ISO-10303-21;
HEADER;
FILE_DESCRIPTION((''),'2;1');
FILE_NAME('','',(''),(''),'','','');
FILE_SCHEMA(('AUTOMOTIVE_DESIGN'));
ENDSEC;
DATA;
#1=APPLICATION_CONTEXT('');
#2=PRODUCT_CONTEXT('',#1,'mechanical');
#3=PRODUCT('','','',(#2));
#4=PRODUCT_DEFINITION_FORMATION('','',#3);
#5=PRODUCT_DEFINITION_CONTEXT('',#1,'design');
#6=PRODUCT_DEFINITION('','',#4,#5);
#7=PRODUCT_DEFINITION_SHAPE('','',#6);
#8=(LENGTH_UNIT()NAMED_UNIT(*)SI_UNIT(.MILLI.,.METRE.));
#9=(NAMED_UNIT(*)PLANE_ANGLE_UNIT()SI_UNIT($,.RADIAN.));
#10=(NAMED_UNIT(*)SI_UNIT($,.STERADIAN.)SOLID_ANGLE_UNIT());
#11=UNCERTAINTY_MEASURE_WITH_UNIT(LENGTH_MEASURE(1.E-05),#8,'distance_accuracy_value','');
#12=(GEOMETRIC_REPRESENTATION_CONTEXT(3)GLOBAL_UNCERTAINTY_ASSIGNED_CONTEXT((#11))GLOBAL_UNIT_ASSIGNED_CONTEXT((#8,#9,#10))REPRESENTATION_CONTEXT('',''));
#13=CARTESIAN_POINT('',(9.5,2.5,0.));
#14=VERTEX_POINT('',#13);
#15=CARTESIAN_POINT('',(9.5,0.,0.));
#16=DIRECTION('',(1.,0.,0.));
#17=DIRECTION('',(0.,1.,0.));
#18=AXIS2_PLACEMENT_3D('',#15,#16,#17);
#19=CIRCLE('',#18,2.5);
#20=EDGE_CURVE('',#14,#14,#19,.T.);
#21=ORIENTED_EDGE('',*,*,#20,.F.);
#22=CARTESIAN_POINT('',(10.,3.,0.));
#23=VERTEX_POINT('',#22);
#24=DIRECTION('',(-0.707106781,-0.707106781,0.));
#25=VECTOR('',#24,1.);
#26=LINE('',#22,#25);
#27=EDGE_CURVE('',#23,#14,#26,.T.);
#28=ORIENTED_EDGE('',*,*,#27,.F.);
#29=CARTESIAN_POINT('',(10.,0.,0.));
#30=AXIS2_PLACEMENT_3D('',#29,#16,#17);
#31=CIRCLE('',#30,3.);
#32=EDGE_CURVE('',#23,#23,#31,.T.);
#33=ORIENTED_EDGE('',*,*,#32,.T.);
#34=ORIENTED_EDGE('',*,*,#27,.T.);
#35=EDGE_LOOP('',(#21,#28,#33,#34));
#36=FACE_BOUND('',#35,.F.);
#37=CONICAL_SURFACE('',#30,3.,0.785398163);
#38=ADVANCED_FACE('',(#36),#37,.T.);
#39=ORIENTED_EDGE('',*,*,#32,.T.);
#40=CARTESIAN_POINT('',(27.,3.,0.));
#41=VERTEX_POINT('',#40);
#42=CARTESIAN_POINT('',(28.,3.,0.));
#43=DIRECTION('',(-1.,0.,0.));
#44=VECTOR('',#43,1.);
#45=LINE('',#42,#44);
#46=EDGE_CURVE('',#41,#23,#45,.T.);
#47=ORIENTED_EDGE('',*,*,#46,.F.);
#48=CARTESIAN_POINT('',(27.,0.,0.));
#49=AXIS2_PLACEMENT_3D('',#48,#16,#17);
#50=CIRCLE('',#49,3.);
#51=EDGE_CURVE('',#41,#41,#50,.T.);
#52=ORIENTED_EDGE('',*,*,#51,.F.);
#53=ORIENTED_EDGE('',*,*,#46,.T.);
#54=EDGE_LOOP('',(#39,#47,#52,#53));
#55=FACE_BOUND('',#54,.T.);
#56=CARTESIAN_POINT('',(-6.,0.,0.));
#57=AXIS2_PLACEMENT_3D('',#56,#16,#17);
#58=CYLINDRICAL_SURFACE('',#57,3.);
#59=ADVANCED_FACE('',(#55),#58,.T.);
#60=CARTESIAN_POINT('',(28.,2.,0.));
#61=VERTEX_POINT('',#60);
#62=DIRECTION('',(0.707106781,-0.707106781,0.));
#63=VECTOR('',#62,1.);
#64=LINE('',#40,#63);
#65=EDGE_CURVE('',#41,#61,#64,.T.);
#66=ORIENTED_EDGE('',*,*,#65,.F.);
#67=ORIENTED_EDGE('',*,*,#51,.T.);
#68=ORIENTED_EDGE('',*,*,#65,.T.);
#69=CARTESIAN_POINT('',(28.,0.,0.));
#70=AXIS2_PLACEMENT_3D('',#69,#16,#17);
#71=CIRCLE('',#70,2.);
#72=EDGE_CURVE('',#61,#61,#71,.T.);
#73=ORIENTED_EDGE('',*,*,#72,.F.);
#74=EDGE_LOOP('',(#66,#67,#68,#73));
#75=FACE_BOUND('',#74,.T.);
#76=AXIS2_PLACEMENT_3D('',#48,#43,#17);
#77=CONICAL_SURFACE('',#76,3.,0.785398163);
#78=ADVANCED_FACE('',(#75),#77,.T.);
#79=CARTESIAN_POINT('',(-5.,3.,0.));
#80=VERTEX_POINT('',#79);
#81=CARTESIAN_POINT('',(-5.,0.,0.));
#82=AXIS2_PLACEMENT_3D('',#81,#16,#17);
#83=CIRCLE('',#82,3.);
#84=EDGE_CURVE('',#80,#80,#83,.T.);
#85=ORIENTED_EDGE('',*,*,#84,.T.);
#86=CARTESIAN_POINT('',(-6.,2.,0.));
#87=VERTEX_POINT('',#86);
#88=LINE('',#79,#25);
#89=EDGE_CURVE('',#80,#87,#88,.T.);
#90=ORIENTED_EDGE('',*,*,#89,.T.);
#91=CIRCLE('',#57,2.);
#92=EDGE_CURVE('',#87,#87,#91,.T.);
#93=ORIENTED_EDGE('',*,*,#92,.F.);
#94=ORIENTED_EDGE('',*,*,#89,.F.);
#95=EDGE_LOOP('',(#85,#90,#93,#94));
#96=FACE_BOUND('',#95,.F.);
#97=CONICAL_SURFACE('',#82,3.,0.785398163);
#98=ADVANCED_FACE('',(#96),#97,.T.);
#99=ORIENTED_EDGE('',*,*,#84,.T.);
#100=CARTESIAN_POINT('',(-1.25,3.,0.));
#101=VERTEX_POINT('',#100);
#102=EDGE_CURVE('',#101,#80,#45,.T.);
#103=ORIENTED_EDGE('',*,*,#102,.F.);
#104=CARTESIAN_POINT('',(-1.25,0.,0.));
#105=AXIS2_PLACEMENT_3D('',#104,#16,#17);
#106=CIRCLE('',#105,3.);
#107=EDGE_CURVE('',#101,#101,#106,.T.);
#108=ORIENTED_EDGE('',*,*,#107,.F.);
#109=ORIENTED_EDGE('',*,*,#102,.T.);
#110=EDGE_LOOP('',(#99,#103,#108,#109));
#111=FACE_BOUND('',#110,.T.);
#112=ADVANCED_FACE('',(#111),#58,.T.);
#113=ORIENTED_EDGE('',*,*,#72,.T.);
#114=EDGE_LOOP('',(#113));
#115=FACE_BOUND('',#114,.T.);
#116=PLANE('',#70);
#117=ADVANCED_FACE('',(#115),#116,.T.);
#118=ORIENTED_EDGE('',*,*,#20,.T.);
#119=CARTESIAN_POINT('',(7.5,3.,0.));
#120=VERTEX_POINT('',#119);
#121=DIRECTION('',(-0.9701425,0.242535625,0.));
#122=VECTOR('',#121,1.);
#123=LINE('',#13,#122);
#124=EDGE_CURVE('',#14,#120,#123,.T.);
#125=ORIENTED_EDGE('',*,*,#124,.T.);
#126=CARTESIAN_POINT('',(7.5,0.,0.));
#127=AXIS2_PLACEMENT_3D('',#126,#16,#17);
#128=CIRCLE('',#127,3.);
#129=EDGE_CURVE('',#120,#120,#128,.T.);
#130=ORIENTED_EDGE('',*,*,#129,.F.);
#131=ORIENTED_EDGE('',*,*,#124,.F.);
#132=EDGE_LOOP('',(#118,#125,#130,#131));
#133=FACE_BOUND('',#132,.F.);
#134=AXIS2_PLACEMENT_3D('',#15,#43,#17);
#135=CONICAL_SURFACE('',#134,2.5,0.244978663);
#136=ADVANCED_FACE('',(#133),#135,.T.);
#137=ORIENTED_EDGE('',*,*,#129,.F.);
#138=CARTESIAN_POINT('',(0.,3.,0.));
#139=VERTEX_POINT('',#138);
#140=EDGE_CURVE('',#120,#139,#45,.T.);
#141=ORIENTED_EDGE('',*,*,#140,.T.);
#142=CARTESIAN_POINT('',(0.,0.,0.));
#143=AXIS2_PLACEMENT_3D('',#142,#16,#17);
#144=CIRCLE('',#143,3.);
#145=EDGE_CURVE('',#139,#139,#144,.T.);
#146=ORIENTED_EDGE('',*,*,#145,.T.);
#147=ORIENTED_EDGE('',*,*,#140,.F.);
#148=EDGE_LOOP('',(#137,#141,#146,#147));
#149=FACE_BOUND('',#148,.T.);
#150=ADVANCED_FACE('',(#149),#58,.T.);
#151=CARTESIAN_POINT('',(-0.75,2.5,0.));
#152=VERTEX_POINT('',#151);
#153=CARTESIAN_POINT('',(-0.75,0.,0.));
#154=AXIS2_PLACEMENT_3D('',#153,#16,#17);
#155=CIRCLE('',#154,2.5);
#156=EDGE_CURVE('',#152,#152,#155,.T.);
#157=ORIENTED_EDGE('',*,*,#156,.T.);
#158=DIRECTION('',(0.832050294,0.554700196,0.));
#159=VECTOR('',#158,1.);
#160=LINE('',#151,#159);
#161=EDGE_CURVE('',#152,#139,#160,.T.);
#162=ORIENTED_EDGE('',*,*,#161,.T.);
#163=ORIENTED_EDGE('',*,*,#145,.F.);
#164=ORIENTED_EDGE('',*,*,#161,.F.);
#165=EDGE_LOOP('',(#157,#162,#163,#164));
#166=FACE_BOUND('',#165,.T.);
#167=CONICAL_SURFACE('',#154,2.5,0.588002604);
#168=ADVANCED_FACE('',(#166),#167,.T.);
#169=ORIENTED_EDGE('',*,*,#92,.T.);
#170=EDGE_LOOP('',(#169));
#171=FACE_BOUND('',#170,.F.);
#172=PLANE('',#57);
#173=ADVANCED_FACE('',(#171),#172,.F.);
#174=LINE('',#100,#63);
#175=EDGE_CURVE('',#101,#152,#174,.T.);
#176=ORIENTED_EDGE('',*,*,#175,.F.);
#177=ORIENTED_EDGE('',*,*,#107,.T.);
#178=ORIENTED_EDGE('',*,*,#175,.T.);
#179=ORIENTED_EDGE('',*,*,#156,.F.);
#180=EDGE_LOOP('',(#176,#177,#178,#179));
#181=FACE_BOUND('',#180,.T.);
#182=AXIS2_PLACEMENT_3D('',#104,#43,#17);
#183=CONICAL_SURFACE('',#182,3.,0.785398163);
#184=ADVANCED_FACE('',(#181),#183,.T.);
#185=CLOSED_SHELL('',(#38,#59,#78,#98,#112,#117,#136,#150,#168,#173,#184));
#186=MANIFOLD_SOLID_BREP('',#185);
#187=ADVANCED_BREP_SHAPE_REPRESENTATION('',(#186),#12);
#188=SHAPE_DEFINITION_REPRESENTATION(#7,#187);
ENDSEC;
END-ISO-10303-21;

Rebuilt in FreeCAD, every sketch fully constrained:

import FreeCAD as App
import Part
import Sketcher
Q = App.Units.Quantity


def edges_at(feature, points):
    """Names of the edges that pass closest to the given points."""
    edges = feature.Shape.Edges
    near = lambda p: min(range(len(edges)), key=lambda i: edges[i].distToShape(Part.Vertex(*p))[0])
    return sorted({f"Edge{near(p) + 1}" for p in points})


def add_polygon(sketch, points):
    """Adds a closed chain of lines whose ends are joined by coincident constraints."""
    first, n = sketch.GeometryCount, len(points)
    for a, b in zip(points, points[1:] + points[:1]):
        sketch.addGeometry(Part.LineSegment(App.Vector(*a, 0), App.Vector(*b, 0)), False)
    for i in range(n):
        sketch.addConstraint(Sketcher.Constraint("Coincident", first + i, 2, first + (i + 1) % n, 1))

doc = App.newDocument("Part")
params = doc.addObject("Spreadsheet::Sheet", "Params")
for row, (alias, value) in enumerate([
    ("sketch1_height", "3 mm"),
    ("revolution_angle", "360 deg"),
    ("chamfer_size", "1 mm"),
    ("chamfer2_size", "1 mm"),
    ("sketch2_width", "2.5 mm"),
    ("groove_angle", "360 deg"),
    ("sketch3_width", "1.25 mm"),
    ("groove2_angle", "360 deg"),
], start=1):
    params.set(f"A{row}", alias)
    params.set(f"B{row}", "=" + value)
    params.setAlias(f"B{row}", alias)

body = doc.addObject("PartDesign::Body", "Body")

# Sketch on XY plane
sketch1 = body.newObject("Sketcher::SketchObject", "Sketch")
sketch1.AttachmentSupport = (doc.getObject("XY_Plane"), [""])
sketch1.MapMode = "FlatFace"
add_polygon(sketch1, [(28, 0), (28, 3), (-6, 3), (-6, 0)])  # lines 0-3
sketch1.addConstraint([
    Sketcher.Constraint("Vertical", 0),
    Sketcher.Constraint("Horizontal", 1),
    Sketcher.Constraint("Vertical", 2),
    Sketcher.Constraint("Horizontal", 3),
    Sketcher.Constraint("PointOnObject", 2, 2, -1),
    Sketcher.Constraint("DistanceX", -1, 1, 0, 2, Q("28 mm")),
    Sketcher.Constraint("DistanceX", 1, 2, -1, 1, Q("6 mm")),
    Sketcher.Constraint("DistanceY", 0, 1, 0, 2, Q("3 mm")),
])
sketch1.setExpression("Constraints[11]", "Params.sketch1_height")
revolution = body.newObject("PartDesign::Revolution", "Revolution")
revolution.Profile = sketch1
revolution.ReferenceAxis = (sketch1, ["H_Axis"])
revolution.setExpression("Angle", "Params.revolution_angle")
doc.recompute()

chamfer = body.newObject("PartDesign::Chamfer", "Chamfer")
chamfer.Base = (revolution, edges_at(revolution, [(-6, -3, 0)]))
chamfer.setExpression("Size", "Params.chamfer_size")
doc.recompute()

chamfer2 = body.newObject("PartDesign::Chamfer", "Chamfer001")
chamfer2.Base = (chamfer, edges_at(chamfer, [(28, -3, 0)]))
chamfer2.setExpression("Size", "Params.chamfer2_size")

# Sketch on XY plane
sketch2 = body.newObject("Sketcher::SketchObject", "Sketch001")
sketch2.AttachmentSupport = (doc.getObject("XY_Plane"), [""])
sketch2.MapMode = "FlatFace"
add_polygon(sketch2, [(10, 3), (7.5, 3), (9.5, 2.5)])  # lines 0-2
sketch2.addConstraint([
    Sketcher.Constraint("Horizontal", 0),
    Sketcher.Constraint("Angle", 2, Q("45 deg")),
    Sketcher.Constraint("DistanceX", 0, 2, 0, 1, Q("2.5 mm")),
    Sketcher.Constraint("DistanceY", -1, 1, 1, 2, Q("2.5 mm")),
    Sketcher.Constraint("DistanceY", 1, 2, 0, 2, Q("0.5 mm")),
    Sketcher.Constraint("DistanceX", -1, 1, 2, 2, Q("10 mm")),
])
sketch2.setExpression("Constraints[5]", "Params.sketch2_width")
groove = body.newObject("PartDesign::Groove", "Groove")
groove.Profile = sketch2
groove.ReferenceAxis = (sketch2, ["H_Axis"])
groove.setExpression("Angle", "Params.groove_angle")

# Sketch on XY plane
sketch3 = body.newObject("Sketcher::SketchObject", "Sketch002")
sketch3.AttachmentSupport = (doc.getObject("XY_Plane"), [""])
sketch3.MapMode = "FlatFace"
add_polygon(sketch3, [(0, 3), (-1.2, 3), (-0.8, 2.5)])  # lines 0-2
sketch3.addConstraint([
    Sketcher.Constraint("Horizontal", 0),
    Sketcher.Constraint("PointOnObject", 2, 2, -2),
    Sketcher.Constraint("Angle", 1, Q("-45 deg")),
    Sketcher.Constraint("DistanceX", 0, 2, 0, 1, Q("1.25 mm")),
    Sketcher.Constraint("DistanceX", 0, 2, 1, 2, Q("0.5 mm")),
    Sketcher.Constraint("DistanceY", -1, 1, 0, 2, Q("3 mm")),
])
sketch3.setExpression("Constraints[6]", "Params.sketch3_width")
groove2 = body.newObject("PartDesign::Groove", "Groove001")
groove2.Profile = sketch3
groove2.ReferenceAxis = (sketch3, ["H_Axis"])
groove2.setExpression("Angle", "Params.groove2_angle")

doc.recompute()
